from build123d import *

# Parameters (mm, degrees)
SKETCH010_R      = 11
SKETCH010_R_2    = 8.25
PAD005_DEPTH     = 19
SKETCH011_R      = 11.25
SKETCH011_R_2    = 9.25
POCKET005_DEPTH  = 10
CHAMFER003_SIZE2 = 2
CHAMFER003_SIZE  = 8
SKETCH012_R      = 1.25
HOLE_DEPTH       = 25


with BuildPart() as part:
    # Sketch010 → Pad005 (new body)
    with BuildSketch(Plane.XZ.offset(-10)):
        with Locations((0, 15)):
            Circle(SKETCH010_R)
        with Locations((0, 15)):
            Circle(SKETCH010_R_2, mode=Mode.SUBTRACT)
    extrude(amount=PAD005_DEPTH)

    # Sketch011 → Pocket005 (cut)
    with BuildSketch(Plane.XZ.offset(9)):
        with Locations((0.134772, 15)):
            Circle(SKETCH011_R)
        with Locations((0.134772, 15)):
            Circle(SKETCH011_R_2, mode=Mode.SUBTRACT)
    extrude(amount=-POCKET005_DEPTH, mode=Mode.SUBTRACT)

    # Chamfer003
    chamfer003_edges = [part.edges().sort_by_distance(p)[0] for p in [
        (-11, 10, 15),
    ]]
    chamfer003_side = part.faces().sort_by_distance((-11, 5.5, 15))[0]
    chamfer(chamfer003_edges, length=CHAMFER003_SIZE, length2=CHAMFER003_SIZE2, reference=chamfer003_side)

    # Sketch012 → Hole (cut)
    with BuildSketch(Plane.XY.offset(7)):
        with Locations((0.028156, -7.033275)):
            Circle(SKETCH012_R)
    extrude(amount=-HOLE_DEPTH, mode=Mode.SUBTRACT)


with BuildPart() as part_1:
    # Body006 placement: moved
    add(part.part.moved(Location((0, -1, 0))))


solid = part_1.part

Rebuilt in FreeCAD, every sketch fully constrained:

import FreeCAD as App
import Part
import Sketcher
from FreeCAD import Vector
Q = App.Units.Quantity


def edges_at(feature, points):
    """Names of the edges that pass closest to the given points."""
    edges = feature.Shape.Edges
    near = lambda p: min(range(len(edges)), key=lambda i: edges[i].distToShape(Part.Vertex(*p))[0])
    return sorted({f"Edge{near(p) + 1}" for p in points})

doc = App.newDocument("Part")
body = doc.addObject("PartDesign::Body", "Body")

# Sketch on XZ plane
sketch1 = doc.addObject("Sketcher::SketchObject", "Sketch")
body.addObject(sketch1)
sketch1.AttachmentSupport = (doc.XZ_Plane, [""])
sketch1.MapMode = "FlatFace"
sketch1.AttachmentOffset = App.Placement(Vector(0, 0, -10), App.Rotation())
sketch1.addGeometry(Part.Circle(Vector(0, 15, 0), Vector(0, 0, 1), 11), False)
sketch1.addGeometry(Part.Circle(Vector(0, 15, 0), Vector(0, 0, 1), 8), False)
sketch1.addConstraint(Sketcher.Constraint("Coincident", 1, 3, 0, 3))
sketch1.addConstraint(Sketcher.Constraint("PointOnObject", 0, 3, -2))
sketch1.addConstraint(Sketcher.Constraint("Diameter", 0, Q("22 mm")))
sketch1.addConstraint(Sketcher.Constraint("Diameter", 1, Q("16.5 mm")))
sketch1.addConstraint(Sketcher.Constraint("DistanceY", -1, 1, 0, 3, Q("15 mm")))
pad1 = doc.addObject("PartDesign::Pad", "Pad")
body.addObject(pad1)
pad1.Profile = sketch1
pad1.Length = 19

# Sketch on XZ plane
sketch2 = doc.addObject("Sketcher::SketchObject", "Sketch001")
body.addObject(sketch2)
sketch2.AttachmentSupport = (doc.XZ_Plane, [""])
sketch2.MapMode = "FlatFace"
sketch2.AttachmentOffset = App.Placement(Vector(0, 0, 9), App.Rotation())
sketch2.addGeometry(Part.Circle(Vector(0, 15, 0), Vector(0, 0, 1), 11), False)
sketch2.addGeometry(Part.Circle(Vector(0, 15, 0), Vector(0, 0, 1), 9), False)
sketch2.addConstraint(Sketcher.Constraint("Coincident", 1, 3, 0, 3))
sketch2.addConstraint(Sketcher.Constraint("Diameter", 0, Q("22.5 mm")))
sketch2.addConstraint(Sketcher.Constraint("Diameter", 1, Q("18.5 mm")))
sketch2.addConstraint(Sketcher.Constraint("DistanceY", -1, 1, 0, 3, Q("15 mm")))
sketch2.addConstraint(Sketcher.Constraint("DistanceX", -1, 1, 0, 3, Q("0.134772 mm")))
pocket1 = doc.addObject("PartDesign::Pocket", "Pocket")
body.addObject(pocket1)
pocket1.Profile = sketch2
pocket1.Length = 10
doc.recompute()

chamfer = doc.addObject("PartDesign::Chamfer", "Chamfer")
body.addObject(chamfer)
chamfer.Base = (pocket1, edges_at(pocket1, [(-11, 10, 15)]))
chamfer.ChamferType = "Two distances"
chamfer.Size = 8
chamfer.Size2 = 2

# Sketch on XY plane
sketch3 = doc.addObject("Sketcher::SketchObject", "Sketch002")
body.addObject(sketch3)
sketch3.AttachmentSupport = (doc.XY_Plane, [""])
sketch3.MapMode = "FlatFace"
sketch3.AttachmentOffset = App.Placement(Vector(0, 0, 7), App.Rotation())
sketch3.addGeometry(Part.Circle(Vector(0, -7, 0), Vector(0, 0, 1), 1.2), False)
sketch3.addConstraint(Sketcher.Constraint("Diameter", 0, Q("2.5 mm")))
sketch3.addConstraint(Sketcher.Constraint("DistanceX", -1, 1, 0, 3, Q("0.028156 mm")))
sketch3.addConstraint(Sketcher.Constraint("DistanceY", 0, 3, -1, 1, Q("7.033275 mm")))
pocket2 = doc.addObject("PartDesign::Pocket", "Pocket001")
body.addObject(pocket2)
pocket2.Profile = sketch3
pocket2.Length = 25
body2 = doc.addObject("PartDesign::Body", "Body001")
doc.recompute()

body.Placement = App.Placement(Vector(0, -1, 0), App.Rotation(Vector(0, 0, 1), 0))
boolean = doc.addObject("PartDesign::Boolean", "Boolean")
body2.addObject(boolean)
boolean.Type = "Fuse"
boolean.addObjects([body])

doc.recompute()
